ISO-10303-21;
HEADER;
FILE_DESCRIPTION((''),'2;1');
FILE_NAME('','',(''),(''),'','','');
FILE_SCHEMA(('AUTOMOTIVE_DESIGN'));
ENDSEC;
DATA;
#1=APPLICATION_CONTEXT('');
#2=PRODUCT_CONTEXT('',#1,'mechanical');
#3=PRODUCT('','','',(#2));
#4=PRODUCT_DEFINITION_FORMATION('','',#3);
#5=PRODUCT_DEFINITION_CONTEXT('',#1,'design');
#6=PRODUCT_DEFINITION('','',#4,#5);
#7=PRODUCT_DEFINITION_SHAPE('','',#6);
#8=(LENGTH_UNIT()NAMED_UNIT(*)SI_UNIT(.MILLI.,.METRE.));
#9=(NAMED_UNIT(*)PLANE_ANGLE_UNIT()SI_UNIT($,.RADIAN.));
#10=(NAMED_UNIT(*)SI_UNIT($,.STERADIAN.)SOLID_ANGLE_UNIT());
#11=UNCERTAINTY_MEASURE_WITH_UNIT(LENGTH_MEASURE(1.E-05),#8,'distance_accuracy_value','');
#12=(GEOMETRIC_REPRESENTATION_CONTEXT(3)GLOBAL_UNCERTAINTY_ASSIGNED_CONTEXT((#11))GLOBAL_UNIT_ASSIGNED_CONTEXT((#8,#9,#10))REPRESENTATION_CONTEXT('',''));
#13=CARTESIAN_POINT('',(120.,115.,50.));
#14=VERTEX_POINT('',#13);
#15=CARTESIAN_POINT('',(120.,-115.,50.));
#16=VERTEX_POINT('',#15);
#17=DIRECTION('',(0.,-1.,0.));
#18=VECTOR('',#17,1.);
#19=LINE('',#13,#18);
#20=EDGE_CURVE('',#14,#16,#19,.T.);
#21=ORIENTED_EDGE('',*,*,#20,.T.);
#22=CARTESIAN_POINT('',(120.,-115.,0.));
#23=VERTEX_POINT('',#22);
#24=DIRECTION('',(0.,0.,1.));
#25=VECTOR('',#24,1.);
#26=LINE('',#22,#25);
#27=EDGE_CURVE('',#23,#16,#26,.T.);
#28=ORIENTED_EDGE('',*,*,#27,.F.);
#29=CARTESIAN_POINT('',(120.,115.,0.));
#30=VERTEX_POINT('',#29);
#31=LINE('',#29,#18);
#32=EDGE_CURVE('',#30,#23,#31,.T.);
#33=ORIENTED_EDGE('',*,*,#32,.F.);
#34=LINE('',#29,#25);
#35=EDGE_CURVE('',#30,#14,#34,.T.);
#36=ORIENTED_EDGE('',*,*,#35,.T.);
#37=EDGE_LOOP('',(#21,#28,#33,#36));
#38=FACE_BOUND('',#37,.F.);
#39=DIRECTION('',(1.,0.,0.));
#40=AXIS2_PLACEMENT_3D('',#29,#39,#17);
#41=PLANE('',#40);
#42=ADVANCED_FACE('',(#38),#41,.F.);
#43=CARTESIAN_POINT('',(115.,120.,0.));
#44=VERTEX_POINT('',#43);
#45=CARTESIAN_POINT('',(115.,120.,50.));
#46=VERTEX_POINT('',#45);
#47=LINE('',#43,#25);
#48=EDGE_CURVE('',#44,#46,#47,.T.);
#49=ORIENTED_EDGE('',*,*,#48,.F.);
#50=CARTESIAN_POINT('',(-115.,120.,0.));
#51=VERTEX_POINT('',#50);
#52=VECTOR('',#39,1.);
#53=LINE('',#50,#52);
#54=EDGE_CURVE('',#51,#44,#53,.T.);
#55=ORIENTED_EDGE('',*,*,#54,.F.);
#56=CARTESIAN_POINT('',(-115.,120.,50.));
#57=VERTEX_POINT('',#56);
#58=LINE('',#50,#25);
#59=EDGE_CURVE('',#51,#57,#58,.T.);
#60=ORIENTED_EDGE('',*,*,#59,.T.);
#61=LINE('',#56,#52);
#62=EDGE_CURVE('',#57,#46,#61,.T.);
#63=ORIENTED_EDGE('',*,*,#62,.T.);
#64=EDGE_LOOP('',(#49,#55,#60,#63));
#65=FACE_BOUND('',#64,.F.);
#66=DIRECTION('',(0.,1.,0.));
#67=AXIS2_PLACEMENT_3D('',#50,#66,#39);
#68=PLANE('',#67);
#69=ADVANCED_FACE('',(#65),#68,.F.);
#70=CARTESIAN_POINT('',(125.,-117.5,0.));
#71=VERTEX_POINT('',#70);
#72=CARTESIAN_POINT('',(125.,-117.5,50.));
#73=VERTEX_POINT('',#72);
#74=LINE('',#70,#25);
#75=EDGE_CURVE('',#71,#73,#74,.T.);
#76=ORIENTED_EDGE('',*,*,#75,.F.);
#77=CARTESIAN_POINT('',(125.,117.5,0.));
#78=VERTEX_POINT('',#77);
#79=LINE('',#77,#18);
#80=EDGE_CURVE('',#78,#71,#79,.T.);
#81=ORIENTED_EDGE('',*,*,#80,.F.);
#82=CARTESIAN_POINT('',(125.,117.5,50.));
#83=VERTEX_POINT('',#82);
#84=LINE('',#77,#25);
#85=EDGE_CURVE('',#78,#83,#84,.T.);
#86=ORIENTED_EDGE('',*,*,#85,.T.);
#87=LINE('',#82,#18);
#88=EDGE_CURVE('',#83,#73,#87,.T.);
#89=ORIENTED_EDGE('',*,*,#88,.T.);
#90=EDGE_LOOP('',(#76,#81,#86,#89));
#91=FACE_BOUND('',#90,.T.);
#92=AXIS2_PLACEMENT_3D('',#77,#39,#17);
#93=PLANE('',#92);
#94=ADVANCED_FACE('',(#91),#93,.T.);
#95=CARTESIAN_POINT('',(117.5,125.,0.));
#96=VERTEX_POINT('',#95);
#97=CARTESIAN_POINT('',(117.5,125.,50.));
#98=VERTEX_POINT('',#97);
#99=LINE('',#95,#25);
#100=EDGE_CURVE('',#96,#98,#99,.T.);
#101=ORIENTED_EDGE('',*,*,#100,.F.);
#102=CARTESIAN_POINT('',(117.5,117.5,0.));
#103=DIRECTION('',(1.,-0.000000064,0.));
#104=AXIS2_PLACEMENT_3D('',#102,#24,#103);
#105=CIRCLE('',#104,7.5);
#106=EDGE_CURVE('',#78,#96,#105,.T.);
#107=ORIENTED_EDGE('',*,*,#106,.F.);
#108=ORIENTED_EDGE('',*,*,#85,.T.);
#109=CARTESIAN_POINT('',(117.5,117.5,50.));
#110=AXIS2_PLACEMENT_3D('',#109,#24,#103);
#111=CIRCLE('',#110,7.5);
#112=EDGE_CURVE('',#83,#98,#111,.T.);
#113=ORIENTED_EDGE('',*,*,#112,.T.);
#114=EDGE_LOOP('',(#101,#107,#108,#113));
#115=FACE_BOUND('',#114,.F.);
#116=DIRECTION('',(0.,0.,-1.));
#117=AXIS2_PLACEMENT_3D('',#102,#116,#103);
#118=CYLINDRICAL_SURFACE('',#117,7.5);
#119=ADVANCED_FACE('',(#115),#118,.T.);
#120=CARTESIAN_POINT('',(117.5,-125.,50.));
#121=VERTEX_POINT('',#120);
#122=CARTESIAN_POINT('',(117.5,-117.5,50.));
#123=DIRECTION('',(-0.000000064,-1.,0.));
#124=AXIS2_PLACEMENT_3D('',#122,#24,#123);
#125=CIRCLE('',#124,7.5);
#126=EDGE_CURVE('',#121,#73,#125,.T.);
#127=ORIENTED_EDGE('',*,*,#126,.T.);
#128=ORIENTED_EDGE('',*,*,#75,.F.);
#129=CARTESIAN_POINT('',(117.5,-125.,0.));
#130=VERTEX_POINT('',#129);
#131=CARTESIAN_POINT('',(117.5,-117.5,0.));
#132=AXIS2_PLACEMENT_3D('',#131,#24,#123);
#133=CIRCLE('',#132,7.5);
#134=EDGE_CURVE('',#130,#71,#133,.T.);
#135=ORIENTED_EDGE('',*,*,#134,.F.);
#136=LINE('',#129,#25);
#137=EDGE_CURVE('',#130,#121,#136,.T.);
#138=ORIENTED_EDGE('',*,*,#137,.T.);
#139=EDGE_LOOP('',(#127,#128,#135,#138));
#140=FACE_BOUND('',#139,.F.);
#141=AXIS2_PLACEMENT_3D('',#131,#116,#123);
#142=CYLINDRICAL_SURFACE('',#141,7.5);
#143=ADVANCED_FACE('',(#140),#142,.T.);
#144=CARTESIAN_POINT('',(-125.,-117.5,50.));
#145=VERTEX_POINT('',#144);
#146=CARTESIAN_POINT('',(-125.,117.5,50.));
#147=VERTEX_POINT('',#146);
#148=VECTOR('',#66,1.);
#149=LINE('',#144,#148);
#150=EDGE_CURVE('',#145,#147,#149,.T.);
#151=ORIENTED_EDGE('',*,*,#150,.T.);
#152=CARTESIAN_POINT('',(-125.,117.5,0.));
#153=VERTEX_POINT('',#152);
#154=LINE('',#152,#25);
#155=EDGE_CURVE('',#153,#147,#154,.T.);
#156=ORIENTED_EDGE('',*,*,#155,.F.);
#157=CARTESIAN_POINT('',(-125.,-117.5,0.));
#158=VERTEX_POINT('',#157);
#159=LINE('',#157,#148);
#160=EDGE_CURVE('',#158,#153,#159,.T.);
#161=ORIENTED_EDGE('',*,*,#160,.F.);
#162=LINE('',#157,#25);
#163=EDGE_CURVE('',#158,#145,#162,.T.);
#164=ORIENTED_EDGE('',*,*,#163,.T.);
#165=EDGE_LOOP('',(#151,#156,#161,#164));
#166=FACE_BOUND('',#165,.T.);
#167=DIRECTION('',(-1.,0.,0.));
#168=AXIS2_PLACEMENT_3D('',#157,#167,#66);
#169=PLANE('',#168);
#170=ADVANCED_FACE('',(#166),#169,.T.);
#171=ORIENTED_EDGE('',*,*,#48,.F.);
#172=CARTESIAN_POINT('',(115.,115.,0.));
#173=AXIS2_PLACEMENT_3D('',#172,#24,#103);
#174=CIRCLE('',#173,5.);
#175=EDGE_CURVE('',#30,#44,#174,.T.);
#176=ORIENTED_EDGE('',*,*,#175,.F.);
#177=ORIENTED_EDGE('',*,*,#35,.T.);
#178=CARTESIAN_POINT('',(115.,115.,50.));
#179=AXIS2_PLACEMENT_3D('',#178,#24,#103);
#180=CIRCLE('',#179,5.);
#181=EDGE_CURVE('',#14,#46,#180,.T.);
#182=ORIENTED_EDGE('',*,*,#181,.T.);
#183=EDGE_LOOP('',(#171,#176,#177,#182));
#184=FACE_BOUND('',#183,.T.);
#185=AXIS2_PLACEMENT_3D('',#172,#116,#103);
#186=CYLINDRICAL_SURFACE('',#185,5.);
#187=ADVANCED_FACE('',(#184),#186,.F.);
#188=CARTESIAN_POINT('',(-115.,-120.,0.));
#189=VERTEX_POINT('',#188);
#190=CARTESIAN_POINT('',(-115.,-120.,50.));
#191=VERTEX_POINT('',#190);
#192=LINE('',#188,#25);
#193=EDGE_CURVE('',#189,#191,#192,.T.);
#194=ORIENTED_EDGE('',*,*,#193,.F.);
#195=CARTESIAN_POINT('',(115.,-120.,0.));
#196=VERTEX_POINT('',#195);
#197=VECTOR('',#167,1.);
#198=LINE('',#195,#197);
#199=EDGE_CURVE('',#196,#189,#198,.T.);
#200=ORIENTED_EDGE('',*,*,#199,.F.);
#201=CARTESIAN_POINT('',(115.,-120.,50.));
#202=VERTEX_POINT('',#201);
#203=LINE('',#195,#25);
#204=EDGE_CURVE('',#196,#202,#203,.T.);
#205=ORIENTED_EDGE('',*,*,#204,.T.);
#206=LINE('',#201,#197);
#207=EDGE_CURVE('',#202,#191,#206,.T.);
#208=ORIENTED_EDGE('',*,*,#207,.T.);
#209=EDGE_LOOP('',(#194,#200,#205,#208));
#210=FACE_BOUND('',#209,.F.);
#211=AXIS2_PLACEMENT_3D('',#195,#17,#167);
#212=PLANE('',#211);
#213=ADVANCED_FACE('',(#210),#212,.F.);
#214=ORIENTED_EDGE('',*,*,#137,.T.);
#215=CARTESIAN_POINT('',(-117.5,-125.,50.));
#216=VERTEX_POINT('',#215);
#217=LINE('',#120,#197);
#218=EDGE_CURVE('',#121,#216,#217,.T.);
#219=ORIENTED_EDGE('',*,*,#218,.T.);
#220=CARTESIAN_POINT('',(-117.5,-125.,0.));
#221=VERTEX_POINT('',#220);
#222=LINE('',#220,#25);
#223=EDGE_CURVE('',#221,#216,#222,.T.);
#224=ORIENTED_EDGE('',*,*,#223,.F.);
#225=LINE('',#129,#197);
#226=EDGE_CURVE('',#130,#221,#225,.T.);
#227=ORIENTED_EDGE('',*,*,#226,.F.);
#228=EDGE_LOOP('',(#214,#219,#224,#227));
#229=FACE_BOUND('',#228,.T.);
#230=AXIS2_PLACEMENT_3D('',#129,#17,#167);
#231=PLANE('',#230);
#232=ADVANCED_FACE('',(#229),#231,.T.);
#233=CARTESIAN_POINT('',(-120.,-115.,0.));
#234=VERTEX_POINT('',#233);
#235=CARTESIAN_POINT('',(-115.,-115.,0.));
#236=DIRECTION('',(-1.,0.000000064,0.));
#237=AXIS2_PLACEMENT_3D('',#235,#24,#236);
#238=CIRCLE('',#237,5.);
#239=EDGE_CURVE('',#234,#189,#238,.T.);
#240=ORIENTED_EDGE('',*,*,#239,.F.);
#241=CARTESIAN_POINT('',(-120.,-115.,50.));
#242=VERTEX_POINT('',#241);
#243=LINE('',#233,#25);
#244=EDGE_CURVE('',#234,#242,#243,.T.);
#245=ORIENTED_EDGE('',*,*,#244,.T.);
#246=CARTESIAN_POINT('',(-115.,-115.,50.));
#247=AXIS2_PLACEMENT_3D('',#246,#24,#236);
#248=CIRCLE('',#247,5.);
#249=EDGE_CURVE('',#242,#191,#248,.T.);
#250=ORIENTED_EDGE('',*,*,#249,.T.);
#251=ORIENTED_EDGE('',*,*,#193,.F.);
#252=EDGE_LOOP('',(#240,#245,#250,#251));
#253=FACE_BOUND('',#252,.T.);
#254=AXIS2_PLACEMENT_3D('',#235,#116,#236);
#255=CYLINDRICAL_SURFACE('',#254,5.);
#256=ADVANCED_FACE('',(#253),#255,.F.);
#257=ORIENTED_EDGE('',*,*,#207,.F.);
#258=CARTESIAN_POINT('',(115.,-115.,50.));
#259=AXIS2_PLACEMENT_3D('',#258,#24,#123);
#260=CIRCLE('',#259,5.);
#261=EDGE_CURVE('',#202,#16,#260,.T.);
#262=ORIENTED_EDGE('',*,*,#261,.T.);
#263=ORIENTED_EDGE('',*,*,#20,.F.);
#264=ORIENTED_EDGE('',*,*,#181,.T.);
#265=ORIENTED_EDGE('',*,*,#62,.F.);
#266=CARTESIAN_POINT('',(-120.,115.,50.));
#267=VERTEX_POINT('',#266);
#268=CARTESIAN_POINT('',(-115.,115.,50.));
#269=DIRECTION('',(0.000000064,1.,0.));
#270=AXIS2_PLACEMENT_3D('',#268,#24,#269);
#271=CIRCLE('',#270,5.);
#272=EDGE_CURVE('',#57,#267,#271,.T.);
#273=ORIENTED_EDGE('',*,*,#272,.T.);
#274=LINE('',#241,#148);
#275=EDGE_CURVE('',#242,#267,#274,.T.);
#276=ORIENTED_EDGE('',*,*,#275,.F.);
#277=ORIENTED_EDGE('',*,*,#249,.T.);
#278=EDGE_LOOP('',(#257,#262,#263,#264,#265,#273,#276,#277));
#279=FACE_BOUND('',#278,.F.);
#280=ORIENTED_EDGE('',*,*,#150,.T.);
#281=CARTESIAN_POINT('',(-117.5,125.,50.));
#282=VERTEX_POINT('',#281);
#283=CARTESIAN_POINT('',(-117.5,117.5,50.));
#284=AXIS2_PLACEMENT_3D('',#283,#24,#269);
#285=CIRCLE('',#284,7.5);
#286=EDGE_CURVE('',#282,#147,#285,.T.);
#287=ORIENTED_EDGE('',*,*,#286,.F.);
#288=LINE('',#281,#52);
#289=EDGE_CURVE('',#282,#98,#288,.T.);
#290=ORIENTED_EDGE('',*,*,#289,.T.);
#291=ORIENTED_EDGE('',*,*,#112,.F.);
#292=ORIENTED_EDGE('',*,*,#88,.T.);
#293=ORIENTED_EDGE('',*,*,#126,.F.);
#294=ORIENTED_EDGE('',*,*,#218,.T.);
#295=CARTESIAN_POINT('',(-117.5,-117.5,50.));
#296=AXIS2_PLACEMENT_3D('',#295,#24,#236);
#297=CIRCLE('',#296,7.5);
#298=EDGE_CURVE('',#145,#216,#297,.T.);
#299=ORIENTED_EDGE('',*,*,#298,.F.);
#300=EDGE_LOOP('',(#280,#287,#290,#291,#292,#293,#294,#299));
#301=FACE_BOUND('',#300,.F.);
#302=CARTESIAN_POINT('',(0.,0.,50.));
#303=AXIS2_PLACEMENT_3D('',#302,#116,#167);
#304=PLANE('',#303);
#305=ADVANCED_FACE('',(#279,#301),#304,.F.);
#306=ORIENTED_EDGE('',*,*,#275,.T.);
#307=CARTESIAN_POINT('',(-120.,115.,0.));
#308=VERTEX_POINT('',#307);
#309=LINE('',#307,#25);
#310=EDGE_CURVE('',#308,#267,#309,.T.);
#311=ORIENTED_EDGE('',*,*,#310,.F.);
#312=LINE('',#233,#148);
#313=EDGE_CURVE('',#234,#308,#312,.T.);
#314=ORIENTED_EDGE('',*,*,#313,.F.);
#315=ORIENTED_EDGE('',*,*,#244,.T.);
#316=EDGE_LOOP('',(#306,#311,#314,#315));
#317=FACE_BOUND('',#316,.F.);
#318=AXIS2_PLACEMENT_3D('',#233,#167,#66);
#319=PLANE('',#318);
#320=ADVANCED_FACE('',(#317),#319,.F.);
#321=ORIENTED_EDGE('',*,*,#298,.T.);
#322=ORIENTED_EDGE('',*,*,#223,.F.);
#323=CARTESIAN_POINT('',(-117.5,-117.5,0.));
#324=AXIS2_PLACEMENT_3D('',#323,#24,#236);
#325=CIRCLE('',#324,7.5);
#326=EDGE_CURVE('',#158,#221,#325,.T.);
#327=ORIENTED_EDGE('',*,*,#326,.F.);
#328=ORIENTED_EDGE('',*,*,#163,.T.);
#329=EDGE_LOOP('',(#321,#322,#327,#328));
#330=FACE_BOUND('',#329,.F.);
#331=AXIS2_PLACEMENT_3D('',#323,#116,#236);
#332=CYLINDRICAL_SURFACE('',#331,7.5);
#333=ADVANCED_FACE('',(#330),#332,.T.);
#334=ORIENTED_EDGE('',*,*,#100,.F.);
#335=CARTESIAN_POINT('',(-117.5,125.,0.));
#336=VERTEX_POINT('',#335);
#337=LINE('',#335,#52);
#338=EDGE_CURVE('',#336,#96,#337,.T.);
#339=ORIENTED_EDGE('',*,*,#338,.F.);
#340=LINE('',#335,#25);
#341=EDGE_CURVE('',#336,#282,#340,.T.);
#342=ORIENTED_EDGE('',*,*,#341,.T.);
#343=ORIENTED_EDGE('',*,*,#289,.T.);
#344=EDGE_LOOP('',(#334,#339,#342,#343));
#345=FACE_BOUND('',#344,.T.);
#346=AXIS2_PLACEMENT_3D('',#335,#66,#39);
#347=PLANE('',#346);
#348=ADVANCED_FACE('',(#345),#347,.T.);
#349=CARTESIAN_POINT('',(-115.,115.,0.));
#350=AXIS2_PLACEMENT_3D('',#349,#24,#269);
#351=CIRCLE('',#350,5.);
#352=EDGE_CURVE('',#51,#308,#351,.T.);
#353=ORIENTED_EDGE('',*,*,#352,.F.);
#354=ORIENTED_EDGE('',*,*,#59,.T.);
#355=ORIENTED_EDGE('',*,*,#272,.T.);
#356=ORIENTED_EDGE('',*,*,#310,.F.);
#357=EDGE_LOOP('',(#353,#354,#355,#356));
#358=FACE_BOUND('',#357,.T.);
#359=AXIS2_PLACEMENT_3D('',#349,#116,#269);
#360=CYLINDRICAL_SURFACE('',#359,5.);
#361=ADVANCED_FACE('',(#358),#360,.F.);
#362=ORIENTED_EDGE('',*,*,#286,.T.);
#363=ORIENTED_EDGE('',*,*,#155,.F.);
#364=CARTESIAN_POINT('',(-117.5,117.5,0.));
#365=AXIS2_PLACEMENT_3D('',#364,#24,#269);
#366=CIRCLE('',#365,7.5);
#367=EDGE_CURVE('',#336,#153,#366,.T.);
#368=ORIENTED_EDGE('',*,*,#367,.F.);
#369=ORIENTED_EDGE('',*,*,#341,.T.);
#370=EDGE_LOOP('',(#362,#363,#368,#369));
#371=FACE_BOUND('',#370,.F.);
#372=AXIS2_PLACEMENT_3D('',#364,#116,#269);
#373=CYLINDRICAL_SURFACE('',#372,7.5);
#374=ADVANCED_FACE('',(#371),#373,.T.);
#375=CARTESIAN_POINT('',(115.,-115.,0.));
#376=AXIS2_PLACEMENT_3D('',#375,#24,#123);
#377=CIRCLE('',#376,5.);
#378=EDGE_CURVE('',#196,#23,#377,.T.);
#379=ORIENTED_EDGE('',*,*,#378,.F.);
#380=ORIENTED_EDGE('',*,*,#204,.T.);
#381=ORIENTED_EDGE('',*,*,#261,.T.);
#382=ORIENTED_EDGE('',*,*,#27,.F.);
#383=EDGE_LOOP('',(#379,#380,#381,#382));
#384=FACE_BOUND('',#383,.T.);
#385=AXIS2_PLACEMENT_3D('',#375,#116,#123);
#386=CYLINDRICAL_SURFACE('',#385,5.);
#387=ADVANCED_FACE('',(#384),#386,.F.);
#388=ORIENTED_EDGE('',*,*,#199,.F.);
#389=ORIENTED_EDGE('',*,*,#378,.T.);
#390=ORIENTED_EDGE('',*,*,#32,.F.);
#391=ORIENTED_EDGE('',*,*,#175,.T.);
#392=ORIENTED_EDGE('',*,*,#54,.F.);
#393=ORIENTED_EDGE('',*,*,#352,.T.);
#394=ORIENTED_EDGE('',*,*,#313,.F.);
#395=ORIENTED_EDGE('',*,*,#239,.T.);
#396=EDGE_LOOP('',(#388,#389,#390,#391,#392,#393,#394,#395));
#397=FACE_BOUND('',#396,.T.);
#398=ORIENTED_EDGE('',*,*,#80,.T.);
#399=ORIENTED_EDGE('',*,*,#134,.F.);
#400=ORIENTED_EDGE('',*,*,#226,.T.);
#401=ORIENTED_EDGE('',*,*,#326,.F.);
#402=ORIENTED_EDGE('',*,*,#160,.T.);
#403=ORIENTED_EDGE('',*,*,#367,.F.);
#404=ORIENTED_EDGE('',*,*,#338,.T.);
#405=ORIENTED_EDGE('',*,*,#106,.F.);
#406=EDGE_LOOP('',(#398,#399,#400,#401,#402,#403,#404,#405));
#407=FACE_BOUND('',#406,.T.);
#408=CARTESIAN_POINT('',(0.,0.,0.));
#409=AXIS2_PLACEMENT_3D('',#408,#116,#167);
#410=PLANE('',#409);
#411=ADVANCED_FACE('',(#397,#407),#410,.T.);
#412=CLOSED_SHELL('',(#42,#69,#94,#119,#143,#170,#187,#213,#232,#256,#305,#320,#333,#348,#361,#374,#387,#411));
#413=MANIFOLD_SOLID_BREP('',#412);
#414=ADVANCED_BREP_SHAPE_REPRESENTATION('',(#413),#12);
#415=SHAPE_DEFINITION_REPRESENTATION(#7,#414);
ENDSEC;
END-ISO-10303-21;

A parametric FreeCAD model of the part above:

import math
import FreeCAD as App
import Part
import Sketcher
Q = App.Units.Quantity

doc = App.newDocument("Part")
params = doc.addObject("Spreadsheet::Sheet", "Params")
for row, (alias, value) in enumerate([
    ("sketch1_radius", "5 mm"),
    ("sketch1_radius2", "7.5 mm"),
    ("sketch1_width", "235 mm"),
    ("sketch1_width2", "230 mm"),
    ("pad1_length", "50 mm"),
], start=1):
    params.set(f"A{row}", alias)
    params.set(f"B{row}", "=" + value)
    params.setAlias(f"B{row}", alias)

body = doc.addObject("PartDesign::Body", "Body")

# Sketch on XY plane
sketch1 = body.newObject("Sketcher::SketchObject", "Sketch")
sketch1.AttachmentSupport = (doc.getObject("XY_Plane"), [""])
sketch1.MapMode = "FlatFace"
sketch1.addGeometry([
    Part.LineSegment(App.Vector(117.5, 125, 0), App.Vector(-117.5, 125, 0)),  # 0
    Part.ArcOfCircle(Part.Circle(App.Vector(-117.5, 117.5, 0), App.Vector(0, 0, 1), 7.5), math.radians(90), math.radians(180)),  # 1
    Part.LineSegment(App.Vector(-125, 117.5, 0), App.Vector(-125, -117.5, 0)),  # 2
    Part.ArcOfCircle(Part.Circle(App.Vector(-117.5, -117.5, 0), App.Vector(0, 0, 1), 7.5), math.radians(180), math.radians(270)),  # 3
    Part.LineSegment(App.Vector(-117.5, -125, 0), App.Vector(117.5, -125, 0)),  # 4
    Part.ArcOfCircle(Part.Circle(App.Vector(117.5, -117.5, 0), App.Vector(0, 0, 1), 7.5), math.radians(-90), math.radians(0)),  # 5
    Part.LineSegment(App.Vector(125, -117.5, 0), App.Vector(125, 117.5, 0)),  # 6
    Part.ArcOfCircle(Part.Circle(App.Vector(117.5, 117.5, 0), App.Vector(0, 0, 1), 7.5), math.radians(0), math.radians(90)),  # 7
    Part.LineSegment(App.Vector(-115, 120, 0), App.Vector(115, 120, 0)),  # 8
    Part.ArcOfCircle(Part.Circle(App.Vector(115, 115, 0), App.Vector(0, 0, 1), 5), math.radians(0), math.radians(90)),  # 9
    Part.LineSegment(App.Vector(120, 115, 0), App.Vector(120, -115, 0)),  # 10
    Part.ArcOfCircle(Part.Circle(App.Vector(115, -115, 0), App.Vector(0, 0, 1), 5), math.radians(-90), math.radians(0)),  # 11
    Part.LineSegment(App.Vector(115, -120, 0), App.Vector(-115, -120, 0)),  # 12
    Part.ArcOfCircle(Part.Circle(App.Vector(-115, -115, 0), App.Vector(0, 0, 1), 5), math.radians(180), math.radians(270)),  # 13
    Part.LineSegment(App.Vector(-120, -115, 0), App.Vector(-120, 115, 0)),  # 14
    Part.ArcOfCircle(Part.Circle(App.Vector(-115, 115, 0), App.Vector(0, 0, 1), 5), math.radians(90), math.radians(180)),  # 15
], False)
sketch1.addConstraint([
    Sketcher.Constraint("Tangent", 0, 2, 1, 1),
    Sketcher.Constraint("Tangent", 1, 2, 2, 1),
    Sketcher.Constraint("Tangent", 2, 2, 3, 1),
    Sketcher.Constraint("Tangent", 3, 2, 4, 1),
    Sketcher.Constraint("Tangent", 4, 2, 5, 1),
    Sketcher.Constraint("Tangent", 5, 2, 6, 1),
    Sketcher.Constraint("Tangent", 6, 2, 7, 1),
    Sketcher.Constraint("Tangent", 7, 2, 0, 1),
    Sketcher.Constraint("Tangent", 8, 2, 9, 2),
    Sketcher.Constraint("Tangent", 9, 1, 10, 1),
    Sketcher.Constraint("Tangent", 10, 2, 11, 2),
    Sketcher.Constraint("Tangent", 11, 1, 12, 1),
    Sketcher.Constraint("Tangent", 12, 2, 13, 2),
    Sketcher.Constraint("Tangent", 13, 1, 14, 1),
    Sketcher.Constraint("Tangent", 14, 2, 15, 2),
    Sketcher.Constraint("Tangent", 15, 1, 8, 1),
    Sketcher.Constraint("Horizontal", 0),
    Sketcher.Constraint("Vertical", 2),
    Sketcher.Constraint("Horizontal", 4),
    Sketcher.Constraint("Vertical", 6),
    Sketcher.Constraint("Horizontal", 8),
    Sketcher.Constraint("Vertical", 10),
    Sketcher.Constraint("Horizontal", 12),
    Sketcher.Constraint("Vertical", 14),
    Sketcher.Constraint("Equal", 1, 3),
    Sketcher.Constraint("Equal", 3, 5),
    Sketcher.Constraint("Equal", 5, 7),
    Sketcher.Constraint("Equal", 9, 11),
    Sketcher.Constraint("Equal", 11, 13),
    Sketcher.Constraint("Equal", 13, 15),
    Sketcher.Constraint("Symmetric", 1, 3, 5, 3, -1, 1),
    Sketcher.Constraint("Symmetric", 9, 3, 13, 3, -1, 1),
    Sketcher.Constraint("Equal", 4, 2),
    Sketcher.Constraint("Equal", 12, 10),
    Sketcher.Constraint("Radius", 9, Q("5 mm")),
    Sketcher.Constraint("Radius", 1, Q("7.5 mm")),
    Sketcher.Constraint("DistanceX", 0, 2, 0, 1, Q("235 mm")),
    Sketcher.Constraint("DistanceX", 8, 1, 8, 2, Q("230 mm")),
])
sketch1.setExpression("Constraints[34]", "Params.sketch1_radius")
sketch1.setExpression("Constraints[35]", "Params.sketch1_radius2")
sketch1.setExpression("Constraints[36]", "Params.sketch1_width")
sketch1.setExpression("Constraints[37]", "Params.sketch1_width2")
pad1 = body.newObject("PartDesign::Pad", "Pad")
pad1.Profile = sketch1
pad1.setExpression("Length", "Params.pad1_length")

doc.recompute()
